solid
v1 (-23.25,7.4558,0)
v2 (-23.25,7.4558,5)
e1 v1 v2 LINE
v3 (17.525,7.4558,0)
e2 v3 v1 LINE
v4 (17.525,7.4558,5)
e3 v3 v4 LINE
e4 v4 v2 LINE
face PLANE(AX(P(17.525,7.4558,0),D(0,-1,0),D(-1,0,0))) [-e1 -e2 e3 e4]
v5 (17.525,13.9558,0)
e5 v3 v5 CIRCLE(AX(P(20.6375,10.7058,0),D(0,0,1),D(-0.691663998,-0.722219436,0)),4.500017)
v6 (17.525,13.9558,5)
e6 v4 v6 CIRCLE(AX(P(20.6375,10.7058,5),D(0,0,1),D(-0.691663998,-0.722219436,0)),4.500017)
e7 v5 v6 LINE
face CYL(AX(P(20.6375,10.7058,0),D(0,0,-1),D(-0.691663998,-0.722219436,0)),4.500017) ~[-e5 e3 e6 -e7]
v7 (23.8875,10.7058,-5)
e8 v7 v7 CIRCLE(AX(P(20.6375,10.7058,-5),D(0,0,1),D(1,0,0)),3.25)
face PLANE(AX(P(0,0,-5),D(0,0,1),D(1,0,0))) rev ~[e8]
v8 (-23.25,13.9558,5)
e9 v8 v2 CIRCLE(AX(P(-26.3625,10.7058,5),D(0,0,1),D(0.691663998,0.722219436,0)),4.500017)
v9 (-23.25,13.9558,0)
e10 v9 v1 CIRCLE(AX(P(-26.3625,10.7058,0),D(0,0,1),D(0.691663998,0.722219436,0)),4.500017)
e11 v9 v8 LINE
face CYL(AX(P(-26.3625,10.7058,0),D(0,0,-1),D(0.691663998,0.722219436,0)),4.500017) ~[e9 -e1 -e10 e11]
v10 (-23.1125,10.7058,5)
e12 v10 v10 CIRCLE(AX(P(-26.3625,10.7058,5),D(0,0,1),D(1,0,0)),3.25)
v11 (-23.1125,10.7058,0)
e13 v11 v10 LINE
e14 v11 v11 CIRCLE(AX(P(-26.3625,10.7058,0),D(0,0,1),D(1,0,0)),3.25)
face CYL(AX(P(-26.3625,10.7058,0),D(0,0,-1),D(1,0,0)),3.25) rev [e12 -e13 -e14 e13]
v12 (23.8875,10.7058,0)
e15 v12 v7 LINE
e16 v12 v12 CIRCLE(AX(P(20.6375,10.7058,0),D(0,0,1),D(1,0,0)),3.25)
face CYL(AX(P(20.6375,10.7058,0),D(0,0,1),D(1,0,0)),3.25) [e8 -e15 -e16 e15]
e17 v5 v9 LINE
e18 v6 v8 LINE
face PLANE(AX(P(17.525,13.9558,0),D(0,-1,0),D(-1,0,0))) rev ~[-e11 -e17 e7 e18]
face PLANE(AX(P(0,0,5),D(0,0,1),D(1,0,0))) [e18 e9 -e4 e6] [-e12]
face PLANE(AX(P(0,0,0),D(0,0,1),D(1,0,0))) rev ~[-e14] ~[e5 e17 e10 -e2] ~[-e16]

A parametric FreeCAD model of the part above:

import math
import FreeCAD as App
import Part
import Sketcher

doc = App.newDocument("Part")
body = doc.addObject("PartDesign::Body", "Body")

# Sketch on XY plane
sketch1 = doc.addObject("Sketcher::SketchObject", "Sketch")
body.addObject(sketch1)
sketch1.AttachmentSupport = (doc.XY_Plane, [""])
sketch1.MapMode = "FlatFace"
sketch1.addGeometry([
    Part.LineSegment(App.Vector(-23.2, 7.5, 0), App.Vector(17.5, 7.5, 0)),  # 0
    Part.ArcOfCircle(Part.Circle(App.Vector(20.6, 10.7, 0), App.Vector(0, 0, 1), 4.5), math.radians(-134), math.radians(134)),  # 1
    Part.LineSegment(App.Vector(17.5, 14, 0), App.Vector(-23.2, 14, 0)),  # 2
    Part.ArcOfCircle(Part.Circle(App.Vector(-26.4, 10.7, 0), App.Vector(0, 0, 1), 4.5), math.radians(46), math.radians(314)),  # 3
    Part.Circle(App.Vector(-26.4, 10.7, 0), App.Vector(0, 0, 1), 3.2),  # 4
], False)
sketch1.addConstraint([
    Sketcher.Constraint("Coincident", 0, 2, 1, 1),
    Sketcher.Constraint("Coincident", 1, 2, 2, 1),
    Sketcher.Constraint("Coincident", 2, 2, 3, 1),
    Sketcher.Constraint("Coincident", 3, 2, 0, 1),
    Sketcher.Constraint("Horizontal", 0),
    Sketcher.Constraint("Horizontal", 2),
    Sketcher.Constraint("Coincident", 4, 3, 3, 3),
    Sketcher.Constraint("Equal", 1, 3),
    Sketcher.Constraint("Horizontal", 1, 3, 3, 3),
    Sketcher.Constraint("Vertical", 0, 2, 1, 2),
    Sketcher.Constraint("Diameter", 4, 6.5),
    Sketcher.Constraint("Radius", 1, 4.5),
    Sketcher.Constraint("DistanceX", 3, 3, 1, 3, 47.0),
    Sketcher.Constraint("DistanceY", 0, 2, 1, 2, 6.5),
    Sketcher.Constraint("DistanceX", 2, 2, -1, 1, 23.25),
    Sketcher.Constraint("DistanceY", -1, 1, 1, 3, 10.7058),
])
pad1 = doc.addObject("PartDesign::Pad", "Pad")
body.addObject(pad1)
pad1.Profile = sketch1
pad1.Length = 5

# Sketch on XY plane
sketch2 = doc.addObject("Sketcher::SketchObject", "Sketch001")
body.addObject(sketch2)
sketch2.AttachmentSupport = (doc.XY_Plane, [""])
sketch2.MapMode = "FlatFace"
sketch2.addGeometry(Part.Circle(App.Vector(20.6, 10.7, 0), App.Vector(0, 0, 1), 3.2), False)
sketch2.addConstraint([
    Sketcher.Constraint("Diameter", 0, 6.5),
    Sketcher.Constraint("DistanceX", -1, 1, 0, 3, 20.6375),
    Sketcher.Constraint("DistanceY", -1, 1, 0, 3, 10.7058),
])
pad2 = doc.addObject("PartDesign::Pad", "Pad001")
body.addObject(pad2)
pad2.Profile = sketch2
pad2.Length = 5
pad2.Reversed = True

doc.recompute()
